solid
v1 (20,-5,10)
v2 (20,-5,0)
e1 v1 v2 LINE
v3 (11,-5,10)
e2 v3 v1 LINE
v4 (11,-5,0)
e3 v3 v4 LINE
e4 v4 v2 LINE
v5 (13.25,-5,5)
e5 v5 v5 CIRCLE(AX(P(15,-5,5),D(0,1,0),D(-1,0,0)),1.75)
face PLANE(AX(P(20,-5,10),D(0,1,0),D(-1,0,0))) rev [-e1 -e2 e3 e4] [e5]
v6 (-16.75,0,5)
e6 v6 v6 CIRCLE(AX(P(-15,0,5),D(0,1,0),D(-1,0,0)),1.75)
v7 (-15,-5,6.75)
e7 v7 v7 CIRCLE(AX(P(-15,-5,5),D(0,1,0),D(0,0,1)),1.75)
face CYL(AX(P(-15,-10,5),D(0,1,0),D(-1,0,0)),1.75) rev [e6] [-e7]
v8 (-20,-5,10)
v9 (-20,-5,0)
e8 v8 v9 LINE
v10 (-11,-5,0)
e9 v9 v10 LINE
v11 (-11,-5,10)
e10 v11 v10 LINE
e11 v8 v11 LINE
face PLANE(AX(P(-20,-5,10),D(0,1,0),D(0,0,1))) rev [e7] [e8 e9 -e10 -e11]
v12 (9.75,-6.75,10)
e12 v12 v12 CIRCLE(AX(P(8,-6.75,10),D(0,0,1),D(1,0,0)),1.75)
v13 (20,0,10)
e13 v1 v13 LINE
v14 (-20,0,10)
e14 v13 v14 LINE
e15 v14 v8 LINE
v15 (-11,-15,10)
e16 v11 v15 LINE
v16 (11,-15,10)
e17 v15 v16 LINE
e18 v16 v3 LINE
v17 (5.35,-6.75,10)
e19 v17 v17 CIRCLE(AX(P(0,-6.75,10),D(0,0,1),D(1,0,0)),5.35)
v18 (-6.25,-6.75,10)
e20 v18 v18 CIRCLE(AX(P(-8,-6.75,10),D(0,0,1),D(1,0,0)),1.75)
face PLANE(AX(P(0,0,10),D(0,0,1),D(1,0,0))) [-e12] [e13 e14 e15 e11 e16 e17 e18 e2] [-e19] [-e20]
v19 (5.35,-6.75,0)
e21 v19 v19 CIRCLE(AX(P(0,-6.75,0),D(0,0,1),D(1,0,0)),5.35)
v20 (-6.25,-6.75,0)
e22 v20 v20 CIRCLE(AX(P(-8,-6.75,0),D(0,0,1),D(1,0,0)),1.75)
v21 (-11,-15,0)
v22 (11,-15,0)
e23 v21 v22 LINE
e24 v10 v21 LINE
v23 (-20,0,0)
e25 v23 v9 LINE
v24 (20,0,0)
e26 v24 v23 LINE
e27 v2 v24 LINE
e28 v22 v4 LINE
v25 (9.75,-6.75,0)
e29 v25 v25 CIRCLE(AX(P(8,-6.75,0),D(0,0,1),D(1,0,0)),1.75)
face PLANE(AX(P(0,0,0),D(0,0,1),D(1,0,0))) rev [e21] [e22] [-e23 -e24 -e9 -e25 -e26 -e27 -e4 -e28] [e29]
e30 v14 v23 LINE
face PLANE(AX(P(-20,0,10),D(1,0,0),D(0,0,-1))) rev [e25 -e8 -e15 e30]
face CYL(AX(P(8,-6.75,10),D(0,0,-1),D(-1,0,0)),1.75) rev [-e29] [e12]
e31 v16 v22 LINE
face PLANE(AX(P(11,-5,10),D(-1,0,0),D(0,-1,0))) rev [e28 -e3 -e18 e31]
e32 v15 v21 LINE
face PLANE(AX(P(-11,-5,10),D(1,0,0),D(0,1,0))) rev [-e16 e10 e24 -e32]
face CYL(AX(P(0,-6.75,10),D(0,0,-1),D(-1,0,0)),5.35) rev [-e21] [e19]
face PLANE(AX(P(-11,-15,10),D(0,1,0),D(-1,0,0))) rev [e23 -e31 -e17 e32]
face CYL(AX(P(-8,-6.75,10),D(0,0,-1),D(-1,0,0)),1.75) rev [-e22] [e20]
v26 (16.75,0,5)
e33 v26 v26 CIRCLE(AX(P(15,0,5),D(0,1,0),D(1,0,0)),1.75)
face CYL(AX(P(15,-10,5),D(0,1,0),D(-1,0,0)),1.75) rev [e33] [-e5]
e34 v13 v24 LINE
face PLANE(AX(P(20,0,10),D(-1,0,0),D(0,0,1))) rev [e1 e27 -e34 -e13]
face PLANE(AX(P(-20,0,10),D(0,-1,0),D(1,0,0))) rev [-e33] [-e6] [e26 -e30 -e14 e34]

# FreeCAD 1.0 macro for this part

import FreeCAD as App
import Part
import Sketcher

doc = App.newDocument("Part")
body = doc.addObject("PartDesign::Body", "Body")

sketch1 = doc.addObject("Sketcher::SketchObject", "Sketch")
body.addObject(sketch1)
sketch1.AttachmentSupport = (doc.XY_Plane, [""])
sketch1.MapMode = "FlatFace"
sketch1.addGeometry(Part.LineSegment(App.Vector(-11, -5, 0), App.Vector(-11, -15, 0)), False)
sketch1.addGeometry(Part.LineSegment(App.Vector(-11, -15, 0), App.Vector(11, -15, 0)), False)
sketch1.addGeometry(Part.LineSegment(App.Vector(11, -15, 0), App.Vector(11, -5, 0)), False)
sketch1.addGeometry(Part.LineSegment(App.Vector(11, -5, 0), App.Vector(20, -5, 0)), False)
sketch1.addGeometry(Part.LineSegment(App.Vector(20, -5, 0), App.Vector(20, 0, 0)), False)
sketch1.addGeometry(Part.LineSegment(App.Vector(20, 0, 0), App.Vector(-20, 0, 0)), False)
sketch1.addGeometry(Part.LineSegment(App.Vector(-20, 0, 0), App.Vector(-20, -5, 0)), False)
sketch1.addGeometry(Part.LineSegment(App.Vector(-20, -5, 0), App.Vector(-11, -5, 0)), False)
sketch1.addGeometry(Part.Circle(App.Vector(-8, -6.75, 0), App.Vector(0, 0, 1), 1.75), False)
sketch1.addGeometry(Part.Circle(App.Vector(0, -6.75, 0), App.Vector(0, 0, 1), 5.35), False)
sketch1.addGeometry(Part.Circle(App.Vector(8, -6.75, 0), App.Vector(0, 0, 1), 1.75), False)
sketch1.addConstraint(Sketcher.Constraint("Coincident", 0, 2, 1, 1))
sketch1.addConstraint(Sketcher.Constraint("Coincident", 1, 2, 2, 1))
sketch1.addConstraint(Sketcher.Constraint("Coincident", 2, 2, 3, 1))
sketch1.addConstraint(Sketcher.Constraint("Coincident", 3, 2, 4, 1))
sketch1.addConstraint(Sketcher.Constraint("Coincident", 4, 2, 5, 1))
sketch1.addConstraint(Sketcher.Constraint("Coincident", 5, 2, 6, 1))
sketch1.addConstraint(Sketcher.Constraint("Coincident", 6, 2, 7, 1))
sketch1.addConstraint(Sketcher.Constraint("Coincident", 7, 2, 0, 1))
sketch1.addConstraint(Sketcher.Constraint("Vertical", 0))
sketch1.addConstraint(Sketcher.Constraint("Horizontal", 1))
sketch1.addConstraint(Sketcher.Constraint("Vertical", 2))
sketch1.addConstraint(Sketcher.Constraint("Horizontal", 3))
sketch1.addConstraint(Sketcher.Constraint("Vertical", 4))
sketch1.addConstraint(Sketcher.Constraint("Horizontal", 5))
sketch1.addConstraint(Sketcher.Constraint("Vertical", 6))
sketch1.addConstraint(Sketcher.Constraint("Horizontal", 7))
sketch1.addConstraint(Sketcher.Constraint("Equal", 8, 10))
sketch1.addConstraint(Sketcher.Constraint("Symmetric", 4, 2, 5, 2, -1, 1))
sketch1.addConstraint(Sketcher.Constraint("Symmetric", 8, 3, 10, 3, -2))
sketch1.addConstraint(Sketcher.Constraint("Symmetric", 2, 2, 7, 2, -2))
sketch1.addConstraint(Sketcher.Constraint("PointOnObject", 9, 3, -2))
sketch1.addConstraint(Sketcher.Constraint("Horizontal", 8, 3, 9, 3))
sketch1.addConstraint(Sketcher.Constraint("Diameter", 8, 3.5))
sketch1.addConstraint(Sketcher.Constraint("Diameter", 9, 10.7))
sketch1.addConstraint(Sketcher.Constraint("DistanceX", 1, 1, 1, 2, 22.0))
sketch1.addConstraint(Sketcher.Constraint("DistanceX", 3, 1, 3, 2, 9.0))
sketch1.addConstraint(Sketcher.Constraint("DistanceY", 0, 2, 0, 1, 10.0))
sketch1.addConstraint(Sketcher.Constraint("DistanceY", 4, 1, 4, 2, 5.0))
sketch1.addConstraint(Sketcher.Constraint("DistanceX", 8, 3, -1, 1, 8.0))
sketch1.addConstraint(Sketcher.Constraint("DistanceY", 8, 3, -1, 1, 6.75))
pad1 = doc.addObject("PartDesign::Pad", "Pad")
body.addObject(pad1)
pad1.Profile = sketch1
pad1.Length = 10

sketch2 = doc.addObject("Sketcher::SketchObject", "Sketch001")
body.addObject(sketch2)
sketch2.AttachmentSupport = (doc.XZ_Plane, [""])
sketch2.MapMode = "FlatFace"
sketch2.addGeometry(Part.Circle(App.Vector(-15, 5, 0), App.Vector(0, 0, 1), 1.75), False)
sketch2.addGeometry(Part.Circle(App.Vector(15, 5, 0), App.Vector(0, 0, 1), 1.75), False)
sketch2.addConstraint(Sketcher.Constraint("Equal", 0, 1))
sketch2.addConstraint(Sketcher.Constraint("Symmetric", 0, 3, 1, 3, -2))
sketch2.addConstraint(Sketcher.Constraint("Diameter", 0, 3.5))
sketch2.addConstraint(Sketcher.Constraint("DistanceX", 0, 3, -1, 1, 15.0))
sketch2.addConstraint(Sketcher.Constraint("DistanceY", -1, 1, 0, 3, 5.0))
pocket1 = doc.addObject("PartDesign::Pocket", "Pocket")
body.addObject(pocket1)
pocket1.Profile = sketch2
pocket1.Length = 10
pocket1.Reversed = True

doc.recompute()
